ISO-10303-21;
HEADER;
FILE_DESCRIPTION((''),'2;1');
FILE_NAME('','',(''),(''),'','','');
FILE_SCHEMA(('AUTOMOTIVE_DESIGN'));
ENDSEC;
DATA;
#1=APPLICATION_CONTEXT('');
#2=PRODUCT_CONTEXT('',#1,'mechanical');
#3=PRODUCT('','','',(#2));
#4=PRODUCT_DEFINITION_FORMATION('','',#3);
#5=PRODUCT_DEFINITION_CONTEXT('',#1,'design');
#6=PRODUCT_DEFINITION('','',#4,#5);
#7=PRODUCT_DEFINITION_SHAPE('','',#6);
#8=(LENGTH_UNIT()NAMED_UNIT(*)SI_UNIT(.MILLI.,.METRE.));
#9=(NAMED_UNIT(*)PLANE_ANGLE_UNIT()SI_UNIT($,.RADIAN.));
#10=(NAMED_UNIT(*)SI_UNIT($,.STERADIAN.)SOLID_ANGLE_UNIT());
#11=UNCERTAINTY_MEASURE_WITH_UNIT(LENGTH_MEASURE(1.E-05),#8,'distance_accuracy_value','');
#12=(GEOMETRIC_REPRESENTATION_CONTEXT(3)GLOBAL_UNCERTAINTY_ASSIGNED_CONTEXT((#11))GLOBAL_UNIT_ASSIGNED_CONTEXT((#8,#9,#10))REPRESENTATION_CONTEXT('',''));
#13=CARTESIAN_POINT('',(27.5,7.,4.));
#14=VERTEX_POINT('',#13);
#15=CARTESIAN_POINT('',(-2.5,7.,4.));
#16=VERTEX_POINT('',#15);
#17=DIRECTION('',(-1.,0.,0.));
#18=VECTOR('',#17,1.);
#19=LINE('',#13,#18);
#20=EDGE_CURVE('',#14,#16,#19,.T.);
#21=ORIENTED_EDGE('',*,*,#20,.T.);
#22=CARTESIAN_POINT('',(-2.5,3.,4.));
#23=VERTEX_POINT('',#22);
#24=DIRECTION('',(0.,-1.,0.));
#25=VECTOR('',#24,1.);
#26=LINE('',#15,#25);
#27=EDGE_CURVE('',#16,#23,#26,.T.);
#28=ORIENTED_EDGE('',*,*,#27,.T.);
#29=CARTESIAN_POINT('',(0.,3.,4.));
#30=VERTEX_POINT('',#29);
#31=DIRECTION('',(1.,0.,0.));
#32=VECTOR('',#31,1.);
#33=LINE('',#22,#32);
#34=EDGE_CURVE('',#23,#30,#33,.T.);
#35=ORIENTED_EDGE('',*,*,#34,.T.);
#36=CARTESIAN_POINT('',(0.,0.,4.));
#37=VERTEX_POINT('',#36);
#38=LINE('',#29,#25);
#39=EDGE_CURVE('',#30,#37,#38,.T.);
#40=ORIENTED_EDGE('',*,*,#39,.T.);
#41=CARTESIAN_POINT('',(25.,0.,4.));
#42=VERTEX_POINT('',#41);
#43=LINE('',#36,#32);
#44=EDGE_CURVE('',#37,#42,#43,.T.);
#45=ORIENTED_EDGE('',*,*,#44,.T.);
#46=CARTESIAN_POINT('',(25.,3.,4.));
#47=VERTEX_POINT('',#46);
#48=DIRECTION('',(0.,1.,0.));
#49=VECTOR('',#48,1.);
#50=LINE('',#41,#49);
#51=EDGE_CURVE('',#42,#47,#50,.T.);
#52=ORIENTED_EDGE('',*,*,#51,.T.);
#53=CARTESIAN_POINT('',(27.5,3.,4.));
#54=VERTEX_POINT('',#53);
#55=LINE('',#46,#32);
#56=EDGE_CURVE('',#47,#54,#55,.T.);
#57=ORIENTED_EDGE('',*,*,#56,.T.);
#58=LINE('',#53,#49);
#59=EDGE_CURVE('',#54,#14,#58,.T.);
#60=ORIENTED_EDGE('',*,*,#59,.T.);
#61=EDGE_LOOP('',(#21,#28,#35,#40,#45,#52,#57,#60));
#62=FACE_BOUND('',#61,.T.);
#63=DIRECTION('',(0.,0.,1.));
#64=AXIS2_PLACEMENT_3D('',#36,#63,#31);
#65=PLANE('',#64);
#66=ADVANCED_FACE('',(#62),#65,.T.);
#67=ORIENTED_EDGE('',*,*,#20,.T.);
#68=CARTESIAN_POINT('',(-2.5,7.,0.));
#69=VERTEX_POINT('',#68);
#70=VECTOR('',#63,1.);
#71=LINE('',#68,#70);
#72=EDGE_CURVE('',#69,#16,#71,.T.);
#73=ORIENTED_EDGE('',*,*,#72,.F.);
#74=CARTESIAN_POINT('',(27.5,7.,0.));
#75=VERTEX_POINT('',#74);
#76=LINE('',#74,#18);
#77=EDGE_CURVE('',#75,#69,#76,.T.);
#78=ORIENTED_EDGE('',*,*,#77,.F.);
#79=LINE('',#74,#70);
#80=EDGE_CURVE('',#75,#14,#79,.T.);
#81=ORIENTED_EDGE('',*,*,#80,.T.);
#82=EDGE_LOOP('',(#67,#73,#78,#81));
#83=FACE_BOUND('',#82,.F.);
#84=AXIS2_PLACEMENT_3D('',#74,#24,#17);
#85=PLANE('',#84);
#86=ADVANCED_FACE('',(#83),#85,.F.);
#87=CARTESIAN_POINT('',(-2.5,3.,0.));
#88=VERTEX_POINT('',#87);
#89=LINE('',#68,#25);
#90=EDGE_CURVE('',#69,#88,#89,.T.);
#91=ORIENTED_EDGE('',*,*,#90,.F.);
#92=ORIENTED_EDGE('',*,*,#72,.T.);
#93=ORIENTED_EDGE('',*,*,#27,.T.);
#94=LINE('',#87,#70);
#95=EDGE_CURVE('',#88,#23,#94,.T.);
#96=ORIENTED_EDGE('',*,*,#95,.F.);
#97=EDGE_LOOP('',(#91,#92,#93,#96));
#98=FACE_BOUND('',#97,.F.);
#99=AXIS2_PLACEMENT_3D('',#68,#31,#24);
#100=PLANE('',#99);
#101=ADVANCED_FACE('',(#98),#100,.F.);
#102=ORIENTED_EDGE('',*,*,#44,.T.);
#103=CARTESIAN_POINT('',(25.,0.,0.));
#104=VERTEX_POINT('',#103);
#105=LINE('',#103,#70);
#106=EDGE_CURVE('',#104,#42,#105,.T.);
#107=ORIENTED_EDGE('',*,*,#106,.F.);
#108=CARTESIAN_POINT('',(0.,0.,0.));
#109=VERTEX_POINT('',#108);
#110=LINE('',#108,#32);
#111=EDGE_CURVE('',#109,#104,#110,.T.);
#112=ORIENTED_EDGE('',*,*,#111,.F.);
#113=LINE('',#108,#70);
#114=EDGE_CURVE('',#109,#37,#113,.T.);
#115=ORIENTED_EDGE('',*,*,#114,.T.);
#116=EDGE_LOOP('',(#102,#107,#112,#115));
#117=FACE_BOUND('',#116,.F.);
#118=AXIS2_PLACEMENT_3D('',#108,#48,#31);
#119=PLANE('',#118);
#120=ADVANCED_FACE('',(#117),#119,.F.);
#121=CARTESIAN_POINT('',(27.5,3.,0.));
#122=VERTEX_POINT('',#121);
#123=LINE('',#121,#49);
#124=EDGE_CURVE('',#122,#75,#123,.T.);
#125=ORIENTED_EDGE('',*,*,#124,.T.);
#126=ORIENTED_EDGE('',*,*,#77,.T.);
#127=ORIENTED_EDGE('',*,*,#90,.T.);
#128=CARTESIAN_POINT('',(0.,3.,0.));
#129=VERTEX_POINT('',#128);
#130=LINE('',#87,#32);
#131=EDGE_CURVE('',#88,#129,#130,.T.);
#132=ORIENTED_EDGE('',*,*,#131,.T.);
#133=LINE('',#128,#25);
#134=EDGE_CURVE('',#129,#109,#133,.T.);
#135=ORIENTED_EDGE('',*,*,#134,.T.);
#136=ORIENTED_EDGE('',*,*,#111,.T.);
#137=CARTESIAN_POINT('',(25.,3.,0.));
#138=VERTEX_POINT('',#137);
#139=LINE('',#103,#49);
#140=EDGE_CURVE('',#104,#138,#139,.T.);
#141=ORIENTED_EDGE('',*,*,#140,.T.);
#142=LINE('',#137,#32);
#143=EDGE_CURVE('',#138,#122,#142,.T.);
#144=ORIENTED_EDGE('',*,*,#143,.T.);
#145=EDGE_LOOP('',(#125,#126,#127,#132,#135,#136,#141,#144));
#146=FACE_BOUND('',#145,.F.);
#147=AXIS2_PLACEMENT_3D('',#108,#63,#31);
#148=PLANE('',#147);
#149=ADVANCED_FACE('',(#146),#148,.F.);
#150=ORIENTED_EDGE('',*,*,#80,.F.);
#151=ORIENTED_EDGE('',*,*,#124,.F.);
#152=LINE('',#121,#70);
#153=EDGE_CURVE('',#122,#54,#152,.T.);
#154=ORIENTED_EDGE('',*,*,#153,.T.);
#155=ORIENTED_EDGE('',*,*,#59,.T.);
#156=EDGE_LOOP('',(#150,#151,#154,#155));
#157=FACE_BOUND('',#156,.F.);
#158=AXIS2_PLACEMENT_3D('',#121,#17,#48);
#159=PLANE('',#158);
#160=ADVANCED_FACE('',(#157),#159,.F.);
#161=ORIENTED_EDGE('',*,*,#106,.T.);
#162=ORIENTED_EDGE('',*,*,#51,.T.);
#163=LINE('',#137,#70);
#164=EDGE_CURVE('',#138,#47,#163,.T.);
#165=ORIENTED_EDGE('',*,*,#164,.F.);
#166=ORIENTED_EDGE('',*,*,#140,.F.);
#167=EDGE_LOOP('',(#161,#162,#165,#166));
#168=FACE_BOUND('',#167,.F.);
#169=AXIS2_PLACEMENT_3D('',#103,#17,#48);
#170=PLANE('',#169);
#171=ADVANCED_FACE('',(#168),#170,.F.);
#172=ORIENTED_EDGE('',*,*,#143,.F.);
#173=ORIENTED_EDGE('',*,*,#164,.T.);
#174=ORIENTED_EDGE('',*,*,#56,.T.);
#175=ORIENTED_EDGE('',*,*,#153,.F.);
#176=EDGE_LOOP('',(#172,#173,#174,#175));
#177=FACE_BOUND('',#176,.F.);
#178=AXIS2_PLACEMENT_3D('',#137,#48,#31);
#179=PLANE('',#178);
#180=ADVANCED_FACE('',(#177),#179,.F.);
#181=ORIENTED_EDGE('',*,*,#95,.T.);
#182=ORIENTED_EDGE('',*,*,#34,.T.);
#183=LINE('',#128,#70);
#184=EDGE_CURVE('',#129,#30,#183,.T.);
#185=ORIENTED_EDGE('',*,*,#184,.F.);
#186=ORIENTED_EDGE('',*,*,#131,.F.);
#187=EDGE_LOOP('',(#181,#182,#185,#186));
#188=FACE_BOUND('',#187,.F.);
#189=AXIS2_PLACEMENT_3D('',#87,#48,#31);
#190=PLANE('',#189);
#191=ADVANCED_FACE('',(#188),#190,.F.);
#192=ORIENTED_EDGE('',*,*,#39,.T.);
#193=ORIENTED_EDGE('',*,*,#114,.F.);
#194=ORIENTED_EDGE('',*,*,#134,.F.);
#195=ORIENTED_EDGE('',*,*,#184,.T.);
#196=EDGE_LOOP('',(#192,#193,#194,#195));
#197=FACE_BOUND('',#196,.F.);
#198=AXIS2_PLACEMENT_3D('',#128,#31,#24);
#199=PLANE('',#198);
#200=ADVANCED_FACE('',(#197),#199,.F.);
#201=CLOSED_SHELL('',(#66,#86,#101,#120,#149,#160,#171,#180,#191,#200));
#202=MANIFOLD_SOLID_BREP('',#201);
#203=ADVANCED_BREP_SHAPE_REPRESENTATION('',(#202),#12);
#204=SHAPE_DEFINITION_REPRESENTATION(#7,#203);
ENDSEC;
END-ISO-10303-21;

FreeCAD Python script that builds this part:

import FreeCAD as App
import Part
import Sketcher

doc = App.newDocument("Part")
body = doc.addObject("PartDesign::Body", "Body")

sketch1 = doc.addObject("Sketcher::SketchObject", "Sketch")
body.addObject(sketch1)
sketch1.AttachmentSupport = (doc.XY_Plane, [""])
sketch1.MapMode = "FlatFace"
sketch1.addGeometry([
    Part.LineSegment(App.Vector(0, 3, 0), App.Vector(0, 0, 0)),
    Part.LineSegment(App.Vector(0, 0, 0), App.Vector(25, 0, 0)),
    Part.LineSegment(App.Vector(25, 0, 0), App.Vector(25, 3, 0)),
    Part.LineSegment(App.Vector(25, 3, 0), App.Vector(27.5, 3, 0)),
    Part.LineSegment(App.Vector(27.5, 3, 0), App.Vector(27.5, 7, 0)),
    Part.LineSegment(App.Vector(27.5, 7, 0), App.Vector(-2.5, 7, 0)),
    Part.LineSegment(App.Vector(-2.5, 7, 0), App.Vector(-2.5, 3, 0)),
    Part.LineSegment(App.Vector(-2.5, 3, 0), App.Vector(0, 3, 0)),
], False)
sketch1.addConstraint([
    Sketcher.Constraint("Coincident", 0, 2, 1, 1),
    Sketcher.Constraint("Coincident", 1, 2, 2, 1),
    Sketcher.Constraint("Coincident", 2, 2, 3, 1),
    Sketcher.Constraint("Coincident", 3, 2, 4, 1),
    Sketcher.Constraint("Coincident", 4, 2, 5, 1),
    Sketcher.Constraint("Coincident", 5, 2, 6, 1),
    Sketcher.Constraint("Coincident", 6, 2, 7, 1),
    Sketcher.Constraint("Coincident", 7, 2, 0, 1),
    Sketcher.Constraint("Vertical", 0),
    Sketcher.Constraint("Horizontal", 1),
    Sketcher.Constraint("Vertical", 2),
    Sketcher.Constraint("Horizontal", 3),
    Sketcher.Constraint("Vertical", 4),
    Sketcher.Constraint("Horizontal", 5),
    Sketcher.Constraint("Vertical", 6),
    Sketcher.Constraint("Horizontal", 7),
    Sketcher.Constraint("Coincident", 0, 2, -1, 1),
    Sketcher.Constraint("Horizontal", 3, 2, 6, 2),
    Sketcher.Constraint("Equal", 3, 7),
    Sketcher.Constraint("DistanceX", 1, 1, 1, 2, 25.0),
    Sketcher.Constraint("DistanceX", 5, 2, 5, 1, 30.0),
    Sketcher.Constraint("DistanceY", 0, 2, 0, 1, 3.0),
    Sketcher.Constraint("DistanceY", 4, 1, 4, 2, 4.0),
])
pad1 = doc.addObject("PartDesign::Pad", "Pad")
body.addObject(pad1)
pad1.Profile = sketch1
pad1.Length = 4

doc.recompute()
